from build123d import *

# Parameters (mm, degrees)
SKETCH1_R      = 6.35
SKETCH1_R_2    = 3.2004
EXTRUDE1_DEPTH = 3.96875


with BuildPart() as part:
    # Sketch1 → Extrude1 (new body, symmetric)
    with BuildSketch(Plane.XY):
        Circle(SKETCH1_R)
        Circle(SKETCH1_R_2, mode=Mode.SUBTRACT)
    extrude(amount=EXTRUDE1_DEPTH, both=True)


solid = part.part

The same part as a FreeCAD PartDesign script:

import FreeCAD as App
import Part
import Sketcher
Q = App.Units.Quantity

doc = App.newDocument("Part")
params = doc.addObject("Spreadsheet::Sheet", "Params")
for row, (alias, value) in enumerate([
    ("sketch1_diameter", "0.5 in"),
    ("sketch1_diameter2", "0.252 in"),
    ("pad1_length", "0.3125 in"),
], start=1):
    params.set(f"A{row}", alias)
    params.set(f"B{row}", "=" + value)
    params.setAlias(f"B{row}", alias)

body = doc.addObject("PartDesign::Body", "Body")

# Sketch on XY plane
sketch1 = body.newObject("Sketcher::SketchObject", "Sketch")
sketch1.AttachmentSupport = (doc.getObject("XY_Plane"), [""])
sketch1.MapMode = "FlatFace"
sketch1.addGeometry([
    Part.Circle(App.Vector(0, 0, 0), App.Vector(0, 0, 1), 6.35),
    Part.Circle(App.Vector(0, 0, 0), App.Vector(0, 0, 1), 3.2004),
], False)
sketch1.addConstraint([
    Sketcher.Constraint("Coincident", 0, 3, -1, 1),
    Sketcher.Constraint("Coincident", 1, 3, -1, 1),
    Sketcher.Constraint("Diameter", 0, Q("0.5 in")),
    Sketcher.Constraint("Diameter", 1, Q("0.252 in")),
])
sketch1.setExpression("Constraints[2]", "Params.sketch1_diameter")
sketch1.setExpression("Constraints[3]", "Params.sketch1_diameter2")
pad1 = body.newObject("PartDesign::Pad", "Pad")
pad1.Profile = sketch1
pad1.setExpression("Length", "Params.pad1_length")
pad1.Midplane = True

doc.recompute()
